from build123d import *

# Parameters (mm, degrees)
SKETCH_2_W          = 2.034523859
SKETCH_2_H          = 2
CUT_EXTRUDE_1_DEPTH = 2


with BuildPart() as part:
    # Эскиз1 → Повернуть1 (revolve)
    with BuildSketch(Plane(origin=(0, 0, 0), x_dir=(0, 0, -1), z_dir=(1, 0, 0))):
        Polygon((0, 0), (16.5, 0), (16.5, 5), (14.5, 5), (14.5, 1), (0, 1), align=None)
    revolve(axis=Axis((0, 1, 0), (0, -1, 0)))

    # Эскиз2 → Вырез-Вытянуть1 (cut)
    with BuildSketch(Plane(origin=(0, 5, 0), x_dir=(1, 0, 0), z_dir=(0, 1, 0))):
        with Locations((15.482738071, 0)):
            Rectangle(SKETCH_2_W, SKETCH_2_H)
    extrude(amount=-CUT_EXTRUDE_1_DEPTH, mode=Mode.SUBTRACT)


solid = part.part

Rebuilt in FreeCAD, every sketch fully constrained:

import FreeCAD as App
import Part
import Sketcher
Q = App.Units.Quantity


def add_polygon(sketch, points):
    """Adds a closed chain of lines whose ends are joined by coincident constraints."""
    first, n = sketch.GeometryCount, len(points)
    for a, b in zip(points, points[1:] + points[:1]):
        sketch.addGeometry(Part.LineSegment(App.Vector(*a, 0), App.Vector(*b, 0)), False)
    for i in range(n):
        sketch.addConstraint(Sketcher.Constraint("Coincident", first + i, 2, first + (i + 1) % n, 1))

doc = App.newDocument("Part")
params = doc.addObject("Spreadsheet::Sheet", "Params")
for row, (alias, value) in enumerate([
    ("sketch1_width", "5 mm"),
    ("sketch1_width2", "4 mm"),
    ("sketch1_height", "2 mm"),
    ("sketch1_height2", "16.5 mm"),
    ("revolution_angle", "360 deg"),
    ("sketch2_height", "2 mm"),
    ("pocket1_length", "2 mm"),
], start=1):
    params.set(f"A{row}", alias)
    params.set(f"B{row}", "=" + value)
    params.setAlias(f"B{row}", alias)

body = doc.addObject("PartDesign::Body", "Body")

sketch1 = body.newObject("Sketcher::SketchObject", "Sketch")
sketch1.AttachmentSupport = (doc.getObject("YZ_Plane"), [""])
sketch1.MapMode = "FlatFace"
add_polygon(sketch1, [(0, 0), (0, -16.5), (5, -16.5), (5, -14.5), (1, -14.5), (1, 0)])
sketch1.addConstraint(Sketcher.Constraint("Vertical", 0))
sketch1.addConstraint(Sketcher.Constraint("Horizontal", 1))
sketch1.addConstraint(Sketcher.Constraint("Vertical", 2))
sketch1.addConstraint(Sketcher.Constraint("Horizontal", 3))
sketch1.addConstraint(Sketcher.Constraint("Vertical", 4))
sketch1.addConstraint(Sketcher.Constraint("Horizontal", 5))
sketch1.addConstraint(Sketcher.Constraint("Coincident", 5, 2, -1, 1))
sketch1.addConstraint(Sketcher.Constraint("DistanceX", 1, 1, 1, 2, Q("5 mm")))
sketch1.addConstraint(Sketcher.Constraint("DistanceX", 3, 2, 3, 1, Q("4 mm")))
sketch1.addConstraint(Sketcher.Constraint("DistanceY", 2, 1, 2, 2, Q("2 mm")))
sketch1.addConstraint(Sketcher.Constraint("DistanceY", 0, 2, 0, 1, Q("16.5 mm")))
sketch1.setExpression("Constraints[13]", "Params.sketch1_width")
sketch1.setExpression("Constraints[14]", "Params.sketch1_width2")
sketch1.setExpression("Constraints[15]", "Params.sketch1_height")
sketch1.setExpression("Constraints[16]", "Params.sketch1_height2")
revolution = body.newObject("PartDesign::Revolution", "Revolution")
revolution.Profile = sketch1
revolution.ReferenceAxis = (sketch1, ["H_Axis"])
revolution.setExpression("Angle", "Params.revolution_angle")

sketch2 = body.newObject("Sketcher::SketchObject", "Sketch001")
sketch2.AttachmentSupport = (doc.getObject("XZ_Plane"), [""])
sketch2.MapMode = "FlatFace"
sketch2.AttachmentOffset = App.Placement(App.Vector(0, 0, -5), App.Rotation())
add_polygon(sketch2, [(14.5, -1), (14.5, 1), (16.5, 1), (16.5, -1)])
sketch2.addConstraint(Sketcher.Constraint("Vertical", 0))
sketch2.addConstraint(Sketcher.Constraint("Horizontal", 1))
sketch2.addConstraint(Sketcher.Constraint("Vertical", 2))
sketch2.addConstraint(Sketcher.Constraint("Horizontal", 3))
sketch2.addConstraint(Sketcher.Constraint("DistanceY", 0, 1, 0, 2, Q("2 mm")))
sketch2.addConstraint(Sketcher.Constraint("DistanceY", -1, 1, 0, 2, Q("1 mm")))
sketch2.addConstraint(Sketcher.Constraint("DistanceX", -1, 1, 1, 2, Q("16.5 mm")))
sketch2.addConstraint(Sketcher.Constraint("DistanceX", 1, 1, 1, 2, Q("2.034524 mm")))
sketch2.setExpression("Constraints[8]", "Params.sketch2_height")
pocket1 = body.newObject("PartDesign::Pocket", "Pocket")
pocket1.Profile = sketch2
pocket1.setExpression("Length", "Params.pocket1_length")
pocket1.Reversed = True

doc.recompute()
